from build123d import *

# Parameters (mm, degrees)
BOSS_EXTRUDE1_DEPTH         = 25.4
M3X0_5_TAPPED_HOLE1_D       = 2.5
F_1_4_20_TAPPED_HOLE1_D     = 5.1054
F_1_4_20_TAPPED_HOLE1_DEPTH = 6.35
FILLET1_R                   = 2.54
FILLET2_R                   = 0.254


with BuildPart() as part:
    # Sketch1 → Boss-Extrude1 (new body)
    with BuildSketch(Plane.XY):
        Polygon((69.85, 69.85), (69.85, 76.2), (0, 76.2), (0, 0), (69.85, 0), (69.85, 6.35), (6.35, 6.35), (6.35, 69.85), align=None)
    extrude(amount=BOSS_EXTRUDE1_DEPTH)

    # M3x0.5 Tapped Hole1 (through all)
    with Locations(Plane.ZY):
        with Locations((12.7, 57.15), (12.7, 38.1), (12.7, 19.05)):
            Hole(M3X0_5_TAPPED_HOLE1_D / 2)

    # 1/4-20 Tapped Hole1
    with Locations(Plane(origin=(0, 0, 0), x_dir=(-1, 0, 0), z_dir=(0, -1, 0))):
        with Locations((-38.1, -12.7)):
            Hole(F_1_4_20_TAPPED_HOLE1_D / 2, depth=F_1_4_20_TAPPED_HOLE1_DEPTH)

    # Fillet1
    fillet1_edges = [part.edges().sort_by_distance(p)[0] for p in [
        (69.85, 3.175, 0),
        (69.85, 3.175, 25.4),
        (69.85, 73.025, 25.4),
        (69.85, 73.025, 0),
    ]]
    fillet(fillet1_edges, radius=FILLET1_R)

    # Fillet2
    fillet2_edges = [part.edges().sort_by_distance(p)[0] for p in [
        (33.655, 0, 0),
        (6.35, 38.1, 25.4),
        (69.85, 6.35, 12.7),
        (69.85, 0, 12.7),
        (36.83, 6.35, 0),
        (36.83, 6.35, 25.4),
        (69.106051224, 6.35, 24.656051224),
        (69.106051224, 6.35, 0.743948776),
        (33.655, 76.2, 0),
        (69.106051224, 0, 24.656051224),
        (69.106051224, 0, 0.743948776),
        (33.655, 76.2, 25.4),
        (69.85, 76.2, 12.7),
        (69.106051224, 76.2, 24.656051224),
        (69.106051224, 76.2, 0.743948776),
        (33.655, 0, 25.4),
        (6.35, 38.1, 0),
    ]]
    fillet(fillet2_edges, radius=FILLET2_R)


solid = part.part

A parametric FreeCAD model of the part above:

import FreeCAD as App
import Part
import Sketcher

V = App.Vector
Q = App.Units.Quantity


def edges_at(feature, points):
    """Names of the edges that pass closest to the given points."""
    edges = feature.Shape.Edges
    near = lambda p: min(range(len(edges)), key=lambda i: edges[i].distToShape(Part.Vertex(*p))[0])
    return sorted({f"Edge{near(p) + 1}" for p in points})

doc = App.newDocument("Part")
body = doc.addObject("PartDesign::Body", "Body")

# Sketch on XY plane
sketch1 = doc.addObject("Sketcher::SketchObject", "Sketch")
body.addObject(sketch1)
sketch1.AttachmentSupport = (doc.XY_Plane, [""])
sketch1.MapMode = "FlatFace"
sketch1.addGeometry(Part.LineSegment(V(70, 70, 0), V(70, 76, 0)), False)
sketch1.addGeometry(Part.LineSegment(V(70, 76, 0), V(0, 76, 0)), False)
sketch1.addGeometry(Part.LineSegment(V(0, 76, 0), V(0, 0, 0)), False)
sketch1.addGeometry(Part.LineSegment(V(0, 0, 0), V(70, 0, 0)), False)
sketch1.addGeometry(Part.LineSegment(V(70, 0, 0), V(70, 6, 0)), False)
sketch1.addGeometry(Part.LineSegment(V(70, 6, 0), V(6, 6, 0)), False)
sketch1.addGeometry(Part.LineSegment(V(6, 6, 0), V(6, 70, 0)), False)
sketch1.addGeometry(Part.LineSegment(V(6, 70, 0), V(70, 70, 0)), False)
sketch1.addConstraint(Sketcher.Constraint("Coincident", 0, 2, 1, 1))
sketch1.addConstraint(Sketcher.Constraint("Coincident", 1, 2, 2, 1))
sketch1.addConstraint(Sketcher.Constraint("Coincident", 2, 2, 3, 1))
sketch1.addConstraint(Sketcher.Constraint("Coincident", 3, 2, 4, 1))
sketch1.addConstraint(Sketcher.Constraint("Coincident", 4, 2, 5, 1))
sketch1.addConstraint(Sketcher.Constraint("Coincident", 5, 2, 6, 1))
sketch1.addConstraint(Sketcher.Constraint("Coincident", 6, 2, 7, 1))
sketch1.addConstraint(Sketcher.Constraint("Coincident", 7, 2, 0, 1))
sketch1.addConstraint(Sketcher.Constraint("Vertical", 0))
sketch1.addConstraint(Sketcher.Constraint("Horizontal", 1))
sketch1.addConstraint(Sketcher.Constraint("Vertical", 2))
sketch1.addConstraint(Sketcher.Constraint("Horizontal", 3))
sketch1.addConstraint(Sketcher.Constraint("Vertical", 4))
sketch1.addConstraint(Sketcher.Constraint("Horizontal", 5))
sketch1.addConstraint(Sketcher.Constraint("Vertical", 6))
sketch1.addConstraint(Sketcher.Constraint("Horizontal", 7))
sketch1.addConstraint(Sketcher.Constraint("Coincident", 2, 2, -1, 1))
sketch1.addConstraint(Sketcher.Constraint("Vertical", 0, 2, 3, 2))
sketch1.addConstraint(Sketcher.Constraint("Equal", 0, 4))
sketch1.addConstraint(Sketcher.Constraint("Equal", 7, 6))
sketch1.addConstraint(Sketcher.Constraint("DistanceY", 2, 2, 2, 1, Q("3 in")))
sketch1.addConstraint(Sketcher.Constraint("DistanceX", 5, 2, 5, 1, Q("2.5 in")))
sketch1.addConstraint(Sketcher.Constraint("DistanceX", 1, 2, 1, 1, Q("2.75 in")))
pad1 = doc.addObject("PartDesign::Pad", "Pad")
body.addObject(pad1)
pad1.Profile = sketch1
pad1.Length = Q("1 in")

# Sketch on YZ plane
sketch2 = doc.addObject("Sketcher::SketchObject", "Sketch001")
body.addObject(sketch2)
sketch2.AttachmentSupport = (doc.YZ_Plane, [""])
sketch2.MapMode = "FlatFace"
sketch2.addGeometry(Part.Circle(V(57.1, 12.7, 0), V(0, 0, 1), 1.2), False)
sketch2.addGeometry(Part.Circle(V(38.1, 12.7, 0), V(0, 0, 1), 1.2), False)
sketch2.addGeometry(Part.Circle(V(19.1, 12.7, 0), V(0, 0, 1), 1.2), False)
sketch2.addConstraint(Sketcher.Constraint("Equal", 0, 1))
sketch2.addConstraint(Sketcher.Constraint("Equal", 1, 2))
sketch2.addConstraint(Sketcher.Constraint("Horizontal", 0, 3, 1, 3))
sketch2.addConstraint(Sketcher.Constraint("Horizontal", 1, 3, 2, 3))
sketch2.addConstraint(Sketcher.Constraint("DistanceY", -1, 1, 0, 3, Q("0.5 in")))
sketch2.addConstraint(Sketcher.Constraint("DistanceX", -1, 1, 1, 3, Q("1.5 in")))
sketch2.addConstraint(Sketcher.Constraint("DistanceX", 2, 3, 0, 3, Q("1.5 in")))
sketch2.addConstraint(Sketcher.Constraint("Diameter", 0, Q("2.5 mm")))
sketch2.addConstraint(Sketcher.Constraint("DistanceX", -1, 1, 0, 3, Q("2.25 in")))
doc.recompute()
hole = doc.addObject("PartDesign::Hole", "Hole")
body.addObject(hole)
hole.Profile = sketch2
hole.ThreadType = "None"
hole.Diameter = 2.5
hole.DepthType = "ThroughAll"
hole.Reversed = True

# Sketch on XZ plane
sketch3 = doc.addObject("Sketcher::SketchObject", "Sketch002")
body.addObject(sketch3)
sketch3.AttachmentSupport = (doc.XZ_Plane, [""])
sketch3.MapMode = "FlatFace"
sketch3.addGeometry(Part.Circle(V(38.1, 12.7, 0), V(0, 0, 1), 2.6), False)
sketch3.addConstraint(Sketcher.Constraint("Diameter", 0, Q("0.201 in")))
sketch3.addConstraint(Sketcher.Constraint("DistanceX", -1, 1, 0, 3, Q("1.5 in")))
sketch3.addConstraint(Sketcher.Constraint("DistanceY", -1, 1, 0, 3, Q("0.5 in")))
doc.recompute()
hole2 = doc.addObject("PartDesign::Hole", "Hole001")
body.addObject(hole2)
hole2.Profile = sketch3
hole2.ThreadType = "None"
hole2.Diameter = Q("0.201 in")
hole2.DepthType = "Dimension"
hole2.Depth = Q("0.25 in")
hole2.DrillPoint = "Flat"
doc.recompute()

fillet = doc.addObject("PartDesign::Fillet", "Fillet")
body.addObject(fillet)
fillet.Base = (hole2, edges_at(hole2, [
    (69.85, 3.175, 0),
    (69.85, 3.175, 25.4),
    (69.85, 73.025, 25.4),
    (69.85, 73.025, 0),
]))
fillet.Radius = Q("0.1 in")
doc.recompute()

fillet2 = doc.addObject("PartDesign::Fillet", "Fillet001")
body.addObject(fillet2)
fillet2.Base = (fillet, edges_at(fillet, [
    (33.655, 0, 0),
    (6.35, 38.1, 25.4),
    (69.85, 6.35, 12.7),
    (69.85, 0, 12.7),
    (36.83, 6.35, 0),
    (36.83, 6.35, 25.4),
    (69.106, 6.35, 24.656),
    (69.106, 6.35, 0.744),
    (33.655, 76.2, 0),
    (69.106, 0, 24.656),
    (69.106, 0, 0.744),
    (33.655, 76.2, 25.4),
    (69.85, 76.2, 12.7),
    (69.106, 76.2, 24.656),
    (69.106, 76.2, 0.744),
    (33.655, 0, 25.4),
    (6.35, 38.1, 0),
]))
fillet2.Radius = Q("0.01 in")

doc.recompute()
